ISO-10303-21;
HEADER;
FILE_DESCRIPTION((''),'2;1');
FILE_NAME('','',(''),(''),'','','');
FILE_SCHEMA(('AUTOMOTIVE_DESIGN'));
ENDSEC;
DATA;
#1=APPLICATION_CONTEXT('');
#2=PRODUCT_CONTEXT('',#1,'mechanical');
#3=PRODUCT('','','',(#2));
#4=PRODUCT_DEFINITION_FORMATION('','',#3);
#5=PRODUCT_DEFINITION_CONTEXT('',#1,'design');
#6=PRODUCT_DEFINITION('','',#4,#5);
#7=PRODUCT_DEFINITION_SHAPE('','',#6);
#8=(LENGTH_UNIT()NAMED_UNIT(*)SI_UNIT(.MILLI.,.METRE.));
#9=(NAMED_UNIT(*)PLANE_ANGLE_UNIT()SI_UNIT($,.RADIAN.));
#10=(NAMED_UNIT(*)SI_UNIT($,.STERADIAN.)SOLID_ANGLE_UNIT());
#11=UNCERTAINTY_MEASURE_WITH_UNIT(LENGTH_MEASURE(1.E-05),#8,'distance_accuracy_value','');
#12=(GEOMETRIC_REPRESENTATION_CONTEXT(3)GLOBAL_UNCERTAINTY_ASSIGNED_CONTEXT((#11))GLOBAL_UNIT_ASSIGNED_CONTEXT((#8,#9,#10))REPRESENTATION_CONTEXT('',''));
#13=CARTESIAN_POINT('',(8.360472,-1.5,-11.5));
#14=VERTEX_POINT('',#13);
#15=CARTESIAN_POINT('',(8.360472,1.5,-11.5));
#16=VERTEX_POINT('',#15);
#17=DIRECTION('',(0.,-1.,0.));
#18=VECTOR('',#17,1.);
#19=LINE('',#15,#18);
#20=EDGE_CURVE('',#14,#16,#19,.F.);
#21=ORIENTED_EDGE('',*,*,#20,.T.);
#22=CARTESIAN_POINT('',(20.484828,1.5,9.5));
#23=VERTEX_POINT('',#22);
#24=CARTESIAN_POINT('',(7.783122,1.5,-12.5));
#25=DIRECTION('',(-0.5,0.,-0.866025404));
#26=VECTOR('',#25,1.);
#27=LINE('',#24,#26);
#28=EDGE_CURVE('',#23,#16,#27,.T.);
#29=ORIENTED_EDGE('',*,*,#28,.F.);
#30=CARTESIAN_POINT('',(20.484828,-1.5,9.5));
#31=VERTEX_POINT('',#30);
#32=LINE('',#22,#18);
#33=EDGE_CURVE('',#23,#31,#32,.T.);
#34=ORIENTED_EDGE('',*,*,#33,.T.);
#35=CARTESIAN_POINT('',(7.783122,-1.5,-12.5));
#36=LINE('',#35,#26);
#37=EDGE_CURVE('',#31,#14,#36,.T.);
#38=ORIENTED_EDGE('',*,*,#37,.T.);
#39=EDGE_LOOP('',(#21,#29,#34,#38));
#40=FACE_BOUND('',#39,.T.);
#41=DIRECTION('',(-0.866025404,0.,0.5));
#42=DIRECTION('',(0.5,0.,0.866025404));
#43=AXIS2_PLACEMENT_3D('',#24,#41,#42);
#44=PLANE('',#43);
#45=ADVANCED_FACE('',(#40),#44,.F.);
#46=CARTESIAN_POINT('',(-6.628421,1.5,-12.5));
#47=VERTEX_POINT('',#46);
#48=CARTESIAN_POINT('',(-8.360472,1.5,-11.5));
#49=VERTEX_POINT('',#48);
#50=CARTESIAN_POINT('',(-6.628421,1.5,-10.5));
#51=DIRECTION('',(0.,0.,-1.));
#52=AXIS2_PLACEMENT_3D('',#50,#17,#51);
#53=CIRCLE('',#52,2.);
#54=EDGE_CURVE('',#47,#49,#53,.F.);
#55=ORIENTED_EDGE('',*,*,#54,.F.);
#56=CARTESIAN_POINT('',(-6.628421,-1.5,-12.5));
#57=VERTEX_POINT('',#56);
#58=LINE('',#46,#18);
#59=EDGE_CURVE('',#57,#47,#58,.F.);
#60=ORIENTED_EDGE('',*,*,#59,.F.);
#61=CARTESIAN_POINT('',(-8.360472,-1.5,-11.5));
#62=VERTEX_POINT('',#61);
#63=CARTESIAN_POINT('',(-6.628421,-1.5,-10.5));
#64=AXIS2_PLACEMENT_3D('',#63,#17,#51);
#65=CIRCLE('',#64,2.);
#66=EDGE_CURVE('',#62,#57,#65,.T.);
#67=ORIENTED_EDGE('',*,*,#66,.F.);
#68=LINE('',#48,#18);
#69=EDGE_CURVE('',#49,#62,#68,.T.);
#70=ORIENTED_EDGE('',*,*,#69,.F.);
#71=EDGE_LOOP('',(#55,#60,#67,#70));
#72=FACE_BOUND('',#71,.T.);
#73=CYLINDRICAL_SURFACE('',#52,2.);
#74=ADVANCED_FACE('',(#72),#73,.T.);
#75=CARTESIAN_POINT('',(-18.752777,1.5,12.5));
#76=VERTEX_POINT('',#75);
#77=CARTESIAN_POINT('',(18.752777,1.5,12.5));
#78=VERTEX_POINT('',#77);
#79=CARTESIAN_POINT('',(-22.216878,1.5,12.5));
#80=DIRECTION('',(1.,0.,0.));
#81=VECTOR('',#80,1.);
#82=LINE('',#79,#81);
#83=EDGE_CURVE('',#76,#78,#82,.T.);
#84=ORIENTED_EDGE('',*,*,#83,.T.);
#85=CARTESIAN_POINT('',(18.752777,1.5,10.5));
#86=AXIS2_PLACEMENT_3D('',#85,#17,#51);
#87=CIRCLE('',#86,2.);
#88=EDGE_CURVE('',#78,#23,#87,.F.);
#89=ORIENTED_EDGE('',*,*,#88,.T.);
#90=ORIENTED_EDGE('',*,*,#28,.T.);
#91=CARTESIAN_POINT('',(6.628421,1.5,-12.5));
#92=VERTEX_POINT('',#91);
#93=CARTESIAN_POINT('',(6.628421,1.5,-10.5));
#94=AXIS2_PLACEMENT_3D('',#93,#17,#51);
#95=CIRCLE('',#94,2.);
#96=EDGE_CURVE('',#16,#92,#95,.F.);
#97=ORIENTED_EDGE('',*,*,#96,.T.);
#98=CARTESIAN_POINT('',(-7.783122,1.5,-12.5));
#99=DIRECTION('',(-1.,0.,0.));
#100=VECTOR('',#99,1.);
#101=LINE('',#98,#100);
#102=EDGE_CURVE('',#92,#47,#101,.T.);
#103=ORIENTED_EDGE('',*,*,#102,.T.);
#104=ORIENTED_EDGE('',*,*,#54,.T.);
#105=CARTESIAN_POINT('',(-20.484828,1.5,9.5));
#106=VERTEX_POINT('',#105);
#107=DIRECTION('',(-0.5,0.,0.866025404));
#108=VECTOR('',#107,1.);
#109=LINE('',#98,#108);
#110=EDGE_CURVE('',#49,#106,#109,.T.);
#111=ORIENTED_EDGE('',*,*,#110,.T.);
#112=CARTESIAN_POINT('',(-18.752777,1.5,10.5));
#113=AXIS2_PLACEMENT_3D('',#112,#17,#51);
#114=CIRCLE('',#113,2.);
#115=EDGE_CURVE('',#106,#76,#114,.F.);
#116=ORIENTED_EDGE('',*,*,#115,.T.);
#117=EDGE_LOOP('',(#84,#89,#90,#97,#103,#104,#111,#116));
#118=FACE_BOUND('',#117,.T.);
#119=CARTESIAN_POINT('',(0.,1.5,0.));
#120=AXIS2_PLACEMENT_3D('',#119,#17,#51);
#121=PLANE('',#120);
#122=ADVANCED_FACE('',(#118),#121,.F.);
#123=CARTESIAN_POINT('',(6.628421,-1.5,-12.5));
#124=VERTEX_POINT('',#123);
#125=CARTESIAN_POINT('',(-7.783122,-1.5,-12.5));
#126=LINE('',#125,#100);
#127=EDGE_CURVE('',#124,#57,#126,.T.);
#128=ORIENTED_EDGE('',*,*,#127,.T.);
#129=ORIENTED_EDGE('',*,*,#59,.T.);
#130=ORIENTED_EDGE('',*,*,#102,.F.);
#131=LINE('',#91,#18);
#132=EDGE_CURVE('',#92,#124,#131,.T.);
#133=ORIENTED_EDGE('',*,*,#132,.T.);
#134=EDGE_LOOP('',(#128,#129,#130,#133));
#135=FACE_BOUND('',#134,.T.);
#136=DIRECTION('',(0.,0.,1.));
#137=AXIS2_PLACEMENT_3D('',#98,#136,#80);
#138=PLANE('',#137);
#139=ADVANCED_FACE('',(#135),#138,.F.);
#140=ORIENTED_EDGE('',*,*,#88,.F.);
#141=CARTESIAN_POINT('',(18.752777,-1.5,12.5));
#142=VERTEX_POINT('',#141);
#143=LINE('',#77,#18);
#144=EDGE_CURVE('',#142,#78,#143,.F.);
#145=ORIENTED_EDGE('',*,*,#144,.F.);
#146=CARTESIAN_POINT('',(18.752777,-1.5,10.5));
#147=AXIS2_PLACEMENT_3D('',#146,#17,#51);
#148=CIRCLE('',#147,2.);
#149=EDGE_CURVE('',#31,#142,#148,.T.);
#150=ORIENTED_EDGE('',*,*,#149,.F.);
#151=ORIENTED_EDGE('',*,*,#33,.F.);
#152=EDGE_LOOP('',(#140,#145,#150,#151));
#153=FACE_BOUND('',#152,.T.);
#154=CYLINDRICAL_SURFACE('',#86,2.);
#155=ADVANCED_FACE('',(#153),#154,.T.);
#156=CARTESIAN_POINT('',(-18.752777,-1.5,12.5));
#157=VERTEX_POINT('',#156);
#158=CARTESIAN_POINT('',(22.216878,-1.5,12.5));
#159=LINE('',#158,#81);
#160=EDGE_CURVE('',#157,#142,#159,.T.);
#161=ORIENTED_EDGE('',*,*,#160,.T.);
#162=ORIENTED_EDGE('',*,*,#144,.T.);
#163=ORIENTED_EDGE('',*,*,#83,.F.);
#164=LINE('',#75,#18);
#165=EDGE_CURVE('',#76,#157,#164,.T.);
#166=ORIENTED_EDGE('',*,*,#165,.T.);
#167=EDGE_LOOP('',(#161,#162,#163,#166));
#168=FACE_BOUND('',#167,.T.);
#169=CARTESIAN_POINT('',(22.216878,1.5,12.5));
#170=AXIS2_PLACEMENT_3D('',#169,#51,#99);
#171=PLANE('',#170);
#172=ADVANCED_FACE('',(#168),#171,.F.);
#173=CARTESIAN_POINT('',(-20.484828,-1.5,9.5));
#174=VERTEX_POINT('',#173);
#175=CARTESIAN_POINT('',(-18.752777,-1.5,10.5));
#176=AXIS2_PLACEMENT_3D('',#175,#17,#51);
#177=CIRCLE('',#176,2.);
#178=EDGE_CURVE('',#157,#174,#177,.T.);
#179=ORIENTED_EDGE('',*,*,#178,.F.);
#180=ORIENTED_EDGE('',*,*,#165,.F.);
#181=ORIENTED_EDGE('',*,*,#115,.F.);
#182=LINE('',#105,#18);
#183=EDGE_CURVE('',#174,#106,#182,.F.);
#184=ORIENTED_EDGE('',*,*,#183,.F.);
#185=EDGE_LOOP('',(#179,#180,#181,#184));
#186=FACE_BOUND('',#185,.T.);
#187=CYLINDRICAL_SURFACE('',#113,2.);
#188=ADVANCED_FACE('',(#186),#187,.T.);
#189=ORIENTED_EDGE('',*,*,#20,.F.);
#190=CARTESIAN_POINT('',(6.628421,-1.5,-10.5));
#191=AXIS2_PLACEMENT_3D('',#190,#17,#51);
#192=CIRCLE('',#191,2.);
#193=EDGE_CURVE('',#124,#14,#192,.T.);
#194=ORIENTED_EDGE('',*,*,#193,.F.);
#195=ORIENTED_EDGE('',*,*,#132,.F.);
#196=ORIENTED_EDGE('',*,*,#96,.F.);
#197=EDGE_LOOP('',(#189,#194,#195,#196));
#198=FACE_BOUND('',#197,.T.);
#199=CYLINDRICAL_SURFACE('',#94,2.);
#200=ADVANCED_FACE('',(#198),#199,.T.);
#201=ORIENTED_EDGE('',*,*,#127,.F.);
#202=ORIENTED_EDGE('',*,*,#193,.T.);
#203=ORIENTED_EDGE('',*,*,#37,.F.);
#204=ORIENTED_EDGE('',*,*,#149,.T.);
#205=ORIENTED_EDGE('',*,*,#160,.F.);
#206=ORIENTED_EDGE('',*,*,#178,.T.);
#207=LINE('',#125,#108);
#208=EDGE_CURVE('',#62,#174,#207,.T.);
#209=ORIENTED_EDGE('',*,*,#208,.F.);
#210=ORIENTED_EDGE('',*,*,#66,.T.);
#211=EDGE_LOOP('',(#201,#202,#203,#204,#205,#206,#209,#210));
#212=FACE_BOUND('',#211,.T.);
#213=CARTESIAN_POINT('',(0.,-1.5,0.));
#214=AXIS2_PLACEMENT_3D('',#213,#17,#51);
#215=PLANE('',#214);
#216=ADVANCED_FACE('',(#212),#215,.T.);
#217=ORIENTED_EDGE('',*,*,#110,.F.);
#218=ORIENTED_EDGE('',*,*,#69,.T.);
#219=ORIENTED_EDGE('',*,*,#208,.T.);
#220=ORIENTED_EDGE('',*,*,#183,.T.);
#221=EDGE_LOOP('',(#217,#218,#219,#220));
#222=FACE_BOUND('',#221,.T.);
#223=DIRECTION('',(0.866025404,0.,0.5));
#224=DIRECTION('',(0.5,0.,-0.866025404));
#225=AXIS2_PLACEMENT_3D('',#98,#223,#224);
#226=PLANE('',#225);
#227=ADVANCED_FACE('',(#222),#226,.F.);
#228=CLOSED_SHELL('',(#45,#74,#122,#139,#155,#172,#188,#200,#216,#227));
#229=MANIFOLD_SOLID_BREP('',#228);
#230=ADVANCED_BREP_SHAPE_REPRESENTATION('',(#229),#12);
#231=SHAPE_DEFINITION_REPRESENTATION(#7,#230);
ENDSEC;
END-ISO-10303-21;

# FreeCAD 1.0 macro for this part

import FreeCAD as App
import Part
import Sketcher
Q = App.Units.Quantity


def edges_at(feature, points):
    """Names of the edges that pass closest to the given points."""
    edges = feature.Shape.Edges
    near = lambda p: min(range(len(edges)), key=lambda i: edges[i].distToShape(Part.Vertex(*p))[0])
    return sorted({f"Edge{near(p) + 1}" for p in points})


def add_polygon(sketch, points):
    """Adds a closed chain of lines whose ends are joined by coincident constraints."""
    first, n = sketch.GeometryCount, len(points)
    for a, b in zip(points, points[1:] + points[:1]):
        sketch.addGeometry(Part.LineSegment(App.Vector(*a, 0), App.Vector(*b, 0)), False)
    for i in range(n):
        sketch.addConstraint(Sketcher.Constraint("Coincident", first + i, 2, first + (i + 1) % n, 1))

doc = App.newDocument("Part")
body = doc.addObject("PartDesign::Body", "Body")

sketch1 = doc.addObject("Sketcher::SketchObject", "Sketch")
body.addObject(sketch1)
sketch1.AttachmentSupport = (doc.XZ_Plane, [""])
sketch1.MapMode = "FlatFace"
add_polygon(sketch1, [(22, 12), (8, -12), (-8, -12), (-22, 12)])
sketch1.addConstraint(Sketcher.Constraint("Horizontal", 1))
sketch1.addConstraint(Sketcher.Constraint("Horizontal", 3))
sketch1.addConstraint(Sketcher.Constraint("Equal", 0, 2))
sketch1.addConstraint(Sketcher.Constraint("Angle", 0, Q("-120 deg")))
sketch1.addConstraint(Sketcher.Constraint("DistanceY", 1, 2, 2, 2, 25.0))
sketch1.addConstraint(Sketcher.Constraint("DistanceX", 2, 2, 0, 2, 30.0))
sketch1.addConstraint(Sketcher.Constraint("DistanceY", 0, 2, -1, 1, 12.5))
sketch1.addConstraint(Sketcher.Constraint("DistanceX", -1, 1, 0, 2, 7.783122))
pad1 = doc.addObject("PartDesign::Pad", "Pad")
body.addObject(pad1)
pad1.Profile = sketch1
pad1.Length = 3
pad1.Midplane = True
doc.recompute()

fillet = doc.addObject("PartDesign::Fillet", "Fillet")
body.addObject(fillet)
fillet.Base = (pad1, edges_at(pad1, [
    (-22.217, 0, 12.5),
    (-7.783, 0, -12.5),
    (7.783, 0, -12.5),
    (22.217, 0, 12.5),
]))
fillet.Radius = 2

doc.recompute()
